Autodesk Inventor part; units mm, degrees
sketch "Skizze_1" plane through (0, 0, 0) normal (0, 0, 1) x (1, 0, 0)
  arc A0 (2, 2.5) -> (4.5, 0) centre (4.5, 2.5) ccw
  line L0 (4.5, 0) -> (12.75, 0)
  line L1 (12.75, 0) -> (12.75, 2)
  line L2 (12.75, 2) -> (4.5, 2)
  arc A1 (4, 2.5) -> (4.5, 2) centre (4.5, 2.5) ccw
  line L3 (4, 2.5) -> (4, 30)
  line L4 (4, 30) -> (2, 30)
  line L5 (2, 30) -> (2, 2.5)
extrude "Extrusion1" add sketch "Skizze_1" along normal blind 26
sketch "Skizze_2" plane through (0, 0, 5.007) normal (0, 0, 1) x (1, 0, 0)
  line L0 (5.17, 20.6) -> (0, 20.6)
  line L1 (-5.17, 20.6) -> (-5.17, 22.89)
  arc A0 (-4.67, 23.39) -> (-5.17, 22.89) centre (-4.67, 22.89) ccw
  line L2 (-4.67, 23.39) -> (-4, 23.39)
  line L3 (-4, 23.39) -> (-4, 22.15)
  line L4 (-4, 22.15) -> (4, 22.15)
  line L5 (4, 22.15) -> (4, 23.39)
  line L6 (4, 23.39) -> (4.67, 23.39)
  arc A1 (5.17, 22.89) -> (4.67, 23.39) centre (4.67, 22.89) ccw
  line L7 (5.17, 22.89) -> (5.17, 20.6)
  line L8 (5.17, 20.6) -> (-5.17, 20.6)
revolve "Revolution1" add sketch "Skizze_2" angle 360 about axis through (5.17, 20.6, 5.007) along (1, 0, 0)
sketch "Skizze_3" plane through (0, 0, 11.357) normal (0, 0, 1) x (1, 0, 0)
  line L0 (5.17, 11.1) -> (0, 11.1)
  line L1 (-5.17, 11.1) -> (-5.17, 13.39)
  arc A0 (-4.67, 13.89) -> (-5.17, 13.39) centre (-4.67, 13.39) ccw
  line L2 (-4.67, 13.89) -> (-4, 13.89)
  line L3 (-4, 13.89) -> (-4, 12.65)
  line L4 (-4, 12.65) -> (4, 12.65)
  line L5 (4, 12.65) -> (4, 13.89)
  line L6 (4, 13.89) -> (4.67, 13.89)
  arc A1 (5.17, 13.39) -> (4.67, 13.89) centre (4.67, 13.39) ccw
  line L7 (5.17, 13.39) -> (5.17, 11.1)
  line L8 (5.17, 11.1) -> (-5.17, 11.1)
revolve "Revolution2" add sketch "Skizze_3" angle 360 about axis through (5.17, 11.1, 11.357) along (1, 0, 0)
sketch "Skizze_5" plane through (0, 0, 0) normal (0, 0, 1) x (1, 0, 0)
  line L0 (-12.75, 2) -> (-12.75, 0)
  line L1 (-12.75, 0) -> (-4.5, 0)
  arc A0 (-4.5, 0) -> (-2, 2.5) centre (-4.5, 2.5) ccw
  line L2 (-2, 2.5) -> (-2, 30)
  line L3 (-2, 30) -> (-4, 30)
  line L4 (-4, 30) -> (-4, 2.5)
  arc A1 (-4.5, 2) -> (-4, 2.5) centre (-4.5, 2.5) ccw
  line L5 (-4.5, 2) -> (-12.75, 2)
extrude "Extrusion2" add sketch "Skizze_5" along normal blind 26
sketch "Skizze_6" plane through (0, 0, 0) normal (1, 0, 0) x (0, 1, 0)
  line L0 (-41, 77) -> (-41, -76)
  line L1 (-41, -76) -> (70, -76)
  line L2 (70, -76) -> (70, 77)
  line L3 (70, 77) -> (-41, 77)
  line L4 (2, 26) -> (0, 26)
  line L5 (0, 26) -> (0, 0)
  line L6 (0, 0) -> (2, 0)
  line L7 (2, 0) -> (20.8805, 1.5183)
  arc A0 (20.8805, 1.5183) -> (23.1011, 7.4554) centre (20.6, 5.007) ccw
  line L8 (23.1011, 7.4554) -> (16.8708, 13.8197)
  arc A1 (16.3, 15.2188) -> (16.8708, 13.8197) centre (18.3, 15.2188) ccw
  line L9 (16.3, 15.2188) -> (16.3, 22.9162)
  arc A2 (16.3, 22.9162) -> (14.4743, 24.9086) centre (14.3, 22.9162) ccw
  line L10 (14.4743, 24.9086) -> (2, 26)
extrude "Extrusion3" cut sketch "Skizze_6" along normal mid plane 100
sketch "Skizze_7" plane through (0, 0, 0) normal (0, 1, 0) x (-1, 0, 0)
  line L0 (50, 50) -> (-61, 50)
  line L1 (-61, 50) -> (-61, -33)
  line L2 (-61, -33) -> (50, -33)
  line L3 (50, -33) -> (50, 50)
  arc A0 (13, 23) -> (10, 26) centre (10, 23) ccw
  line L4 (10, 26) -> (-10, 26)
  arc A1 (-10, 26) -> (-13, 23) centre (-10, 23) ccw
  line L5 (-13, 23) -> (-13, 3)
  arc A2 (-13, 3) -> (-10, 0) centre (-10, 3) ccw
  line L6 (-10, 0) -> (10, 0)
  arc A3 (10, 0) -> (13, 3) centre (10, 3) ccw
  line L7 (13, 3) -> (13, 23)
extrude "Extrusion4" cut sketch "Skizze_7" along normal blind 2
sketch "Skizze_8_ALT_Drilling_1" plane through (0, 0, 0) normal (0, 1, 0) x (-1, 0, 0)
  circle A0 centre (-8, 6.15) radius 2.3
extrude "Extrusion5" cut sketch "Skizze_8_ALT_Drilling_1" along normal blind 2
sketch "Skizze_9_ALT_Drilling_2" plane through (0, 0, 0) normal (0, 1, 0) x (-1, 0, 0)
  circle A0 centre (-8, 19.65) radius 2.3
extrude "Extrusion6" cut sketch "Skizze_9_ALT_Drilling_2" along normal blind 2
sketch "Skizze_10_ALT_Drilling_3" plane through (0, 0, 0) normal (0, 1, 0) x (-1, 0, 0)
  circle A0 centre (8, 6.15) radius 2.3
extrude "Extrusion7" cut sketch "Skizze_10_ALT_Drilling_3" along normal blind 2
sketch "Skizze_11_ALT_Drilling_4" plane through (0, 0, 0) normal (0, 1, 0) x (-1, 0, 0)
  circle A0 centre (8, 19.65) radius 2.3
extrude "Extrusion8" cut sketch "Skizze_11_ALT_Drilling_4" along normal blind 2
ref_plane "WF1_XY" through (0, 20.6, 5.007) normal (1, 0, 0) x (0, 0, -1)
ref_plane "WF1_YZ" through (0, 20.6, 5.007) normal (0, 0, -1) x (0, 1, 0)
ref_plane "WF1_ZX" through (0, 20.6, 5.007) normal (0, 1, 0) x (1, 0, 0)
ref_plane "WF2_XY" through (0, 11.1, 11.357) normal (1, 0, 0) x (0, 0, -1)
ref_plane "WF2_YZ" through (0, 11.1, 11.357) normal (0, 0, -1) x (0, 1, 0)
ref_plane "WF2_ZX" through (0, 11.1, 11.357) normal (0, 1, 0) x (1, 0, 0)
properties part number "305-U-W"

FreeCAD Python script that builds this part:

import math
import FreeCAD as App
import Part
import Sketcher
Q = App.Units.Quantity


def add_polygon(sketch, points):
    """Adds a closed chain of lines whose ends are joined by coincident constraints."""
    first, n = sketch.GeometryCount, len(points)
    for a, b in zip(points, points[1:] + points[:1]):
        sketch.addGeometry(Part.LineSegment(App.Vector(*a, 0), App.Vector(*b, 0)), False)
    for i in range(n):
        sketch.addConstraint(Sketcher.Constraint("Coincident", first + i, 2, first + (i + 1) % n, 1))

doc = App.newDocument("Part")
body = doc.addObject("PartDesign::Body", "Body")

sketch1 = body.newObject("Sketcher::SketchObject", "Sketch")
sketch1.AttachmentSupport = (doc.getObject("XY_Plane"), [""])
sketch1.MapMode = "FlatFace"
sketch1.addGeometry([
    Part.LineSegment(App.Vector(2, 30, 0), App.Vector(2, 2.5, 0)),
    Part.ArcOfCircle(Part.Circle(App.Vector(4.5, 2.5, 0), App.Vector(0, 0, 1), 2.5), math.radians(180), math.radians(270)),
    Part.LineSegment(App.Vector(4.5, 0, 0), App.Vector(12.8, 0, 0)),
    Part.LineSegment(App.Vector(12.8, 0, 0), App.Vector(12.8, 2, 0)),
    Part.LineSegment(App.Vector(12.8, 2, 0), App.Vector(4.5, 2, 0)),
    Part.ArcOfCircle(Part.Circle(App.Vector(4.5, 2.5, 0), App.Vector(0, 0, 1), 0.5), math.radians(180), math.radians(270)),
    Part.LineSegment(App.Vector(4, 2.5, 0), App.Vector(4, 30, 0)),
    Part.LineSegment(App.Vector(4, 30, 0), App.Vector(2, 30, 0)),
], False)
sketch1.addConstraint([
    Sketcher.Constraint("Tangent", 0, 2, 1, 1),
    Sketcher.Constraint("Tangent", 1, 2, 2, 1),
    Sketcher.Constraint("Coincident", 2, 2, 3, 1),
    Sketcher.Constraint("Coincident", 3, 2, 4, 1),
    Sketcher.Constraint("Tangent", 4, 2, 5, 2),
    Sketcher.Constraint("Tangent", 5, 1, 6, 1),
    Sketcher.Constraint("Coincident", 6, 2, 7, 1),
    Sketcher.Constraint("Coincident", 7, 2, 0, 1),
    Sketcher.Constraint("Vertical", 0),
    Sketcher.Constraint("Horizontal", 2),
    Sketcher.Constraint("Vertical", 3),
    Sketcher.Constraint("Horizontal", 4),
    Sketcher.Constraint("Vertical", 6),
    Sketcher.Constraint("Horizontal", 7),
    Sketcher.Constraint("Coincident", 5, 3, 1, 3),
    Sketcher.Constraint("PointOnObject", 1, 2, -1),
    Sketcher.Constraint("Radius", 1, 2.5),
    Sketcher.Constraint("Radius", 5, 0.5),
    Sketcher.Constraint("DistanceY", 0, 2, 0, 1, 27.5),
    Sketcher.Constraint("DistanceX", -1, 1, 0, 2, 2.0),
    Sketcher.Constraint("DistanceX", 2, 1, 2, 2, 8.25),
])
pad1 = body.newObject("PartDesign::Pad", "Pad")
pad1.Profile = sketch1
pad1.Length = 26

sketch2 = body.newObject("Sketcher::SketchObject", "Sketch001")
sketch2.AttachmentSupport = (doc.getObject("XY_Plane"), [""])
sketch2.MapMode = "FlatFace"
sketch2.AttachmentOffset = App.Placement(App.Vector(0, 0, 5.007), App.Rotation())
sketch2.addGeometry([
    Part.LineSegment(App.Vector(-5.2, 20.6, 0), App.Vector(5.2, 20.6, 0)),
    Part.LineSegment(App.Vector(5.2, 20.6, 0), App.Vector(5.2, 22.9, 0)),
    Part.ArcOfCircle(Part.Circle(App.Vector(4.7, 22.9, 0), App.Vector(0, 0, 1), 0.5), math.radians(0), math.radians(90)),
    Part.LineSegment(App.Vector(4.7, 23.4, 0), App.Vector(4, 23.4, 0)),
    Part.LineSegment(App.Vector(4, 23.4, 0), App.Vector(4, 22.1, 0)),
    Part.LineSegment(App.Vector(4, 22.1, 0), App.Vector(-4, 22.1, 0)),
    Part.LineSegment(App.Vector(-4, 22.1, 0), App.Vector(-4, 23.4, 0)),
    Part.LineSegment(App.Vector(-4, 23.4, 0), App.Vector(-4.7, 23.4, 0)),
    Part.ArcOfCircle(Part.Circle(App.Vector(-4.7, 22.9, 0), App.Vector(0, 0, 1), 0.5), math.radians(90), math.radians(180)),
    Part.LineSegment(App.Vector(-5.2, 22.9, 0), App.Vector(-5.2, 20.6, 0)),
], False)
sketch2.addGeometry(Part.LineSegment(App.Vector(-5.2, 20.6, 0), App.Vector(5.2, 20.6, 0)), True)
sketch2.addConstraint([
    Sketcher.Constraint("Coincident", 0, 2, 1, 1),
    Sketcher.Constraint("Tangent", 1, 2, 2, 1),
    Sketcher.Constraint("Tangent", 2, 2, 3, 1),
    Sketcher.Constraint("Coincident", 3, 2, 4, 1),
    Sketcher.Constraint("Coincident", 4, 2, 5, 1),
    Sketcher.Constraint("Coincident", 5, 2, 6, 1),
    Sketcher.Constraint("Coincident", 6, 2, 7, 1),
    Sketcher.Constraint("Tangent", 7, 2, 8, 1),
    Sketcher.Constraint("Tangent", 8, 2, 9, 1),
    Sketcher.Constraint("Coincident", 9, 2, 0, 1),
    Sketcher.Constraint("Horizontal", 0),
    Sketcher.Constraint("Vertical", 1),
    Sketcher.Constraint("Horizontal", 3),
    Sketcher.Constraint("Vertical", 4),
    Sketcher.Constraint("Horizontal", 5),
    Sketcher.Constraint("Vertical", 6),
    Sketcher.Constraint("Horizontal", 7),
    Sketcher.Constraint("Vertical", 9),
    Sketcher.Constraint("Horizontal", 10),
    Sketcher.Constraint("Coincident", 10, 1, 9, 2),
    Sketcher.Constraint("Equal", 2, 8),
    Sketcher.Constraint("Symmetric", 2, 3, 8, 3, -2),
    Sketcher.Constraint("Vertical", 1, 2, 10, 2),
    Sketcher.Constraint("Equal", 3, 7),
    Sketcher.Constraint("Radius", 2, 0.5),
    Sketcher.Constraint("DistanceX", 5, 2, 5, 1, 8.0),
    Sketcher.Constraint("DistanceX", 0, 1, 0, 2, 10.34),
    Sketcher.Constraint("DistanceY", 1, 1, 1, 2, 2.29),
    Sketcher.Constraint("DistanceY", 4, 2, 4, 1, 1.24),
    Sketcher.Constraint("DistanceY", -1, 1, 0, 2, 20.6),
])
revolution = body.newObject("PartDesign::Revolution", "Revolution")
revolution.Profile = sketch2
revolution.ReferenceAxis = (sketch2, ["Axis0"])
revolution.Angle = 360

sketch3 = body.newObject("Sketcher::SketchObject", "Sketch002")
sketch3.AttachmentSupport = (doc.getObject("XY_Plane"), [""])
sketch3.MapMode = "FlatFace"
sketch3.AttachmentOffset = App.Placement(App.Vector(0, 0, 11.357), App.Rotation())
sketch3.addGeometry([
    Part.LineSegment(App.Vector(-5.2, 11.1, 0), App.Vector(5.2, 11.1, 0)),
    Part.LineSegment(App.Vector(5.2, 11.1, 0), App.Vector(5.2, 13.4, 0)),
    Part.ArcOfCircle(Part.Circle(App.Vector(4.7, 13.4, 0), App.Vector(0, 0, 1), 0.5), math.radians(0), math.radians(90)),
    Part.LineSegment(App.Vector(4.7, 13.9, 0), App.Vector(4, 13.9, 0)),
    Part.LineSegment(App.Vector(4, 13.9, 0), App.Vector(4, 12.7, 0)),
    Part.LineSegment(App.Vector(4, 12.7, 0), App.Vector(-4, 12.7, 0)),
    Part.LineSegment(App.Vector(-4, 12.7, 0), App.Vector(-4, 13.9, 0)),
    Part.LineSegment(App.Vector(-4, 13.9, 0), App.Vector(-4.7, 13.9, 0)),
    Part.ArcOfCircle(Part.Circle(App.Vector(-4.7, 13.4, 0), App.Vector(0, 0, 1), 0.5), math.radians(90), math.radians(180)),
    Part.LineSegment(App.Vector(-5.2, 13.4, 0), App.Vector(-5.2, 11.1, 0)),
], False)
sketch3.addGeometry(Part.LineSegment(App.Vector(-5.2, 11.1, 0), App.Vector(5.2, 11.1, 0)), True)
sketch3.addConstraint([
    Sketcher.Constraint("Coincident", 0, 2, 1, 1),
    Sketcher.Constraint("Tangent", 1, 2, 2, 1),
    Sketcher.Constraint("Tangent", 2, 2, 3, 1),
    Sketcher.Constraint("Coincident", 3, 2, 4, 1),
    Sketcher.Constraint("Coincident", 4, 2, 5, 1),
    Sketcher.Constraint("Coincident", 5, 2, 6, 1),
    Sketcher.Constraint("Coincident", 6, 2, 7, 1),
    Sketcher.Constraint("Tangent", 7, 2, 8, 1),
    Sketcher.Constraint("Tangent", 8, 2, 9, 1),
    Sketcher.Constraint("Coincident", 9, 2, 0, 1),
    Sketcher.Constraint("Horizontal", 0),
    Sketcher.Constraint("Vertical", 1),
    Sketcher.Constraint("Horizontal", 3),
    Sketcher.Constraint("Vertical", 4),
    Sketcher.Constraint("Horizontal", 5),
    Sketcher.Constraint("Vertical", 6),
    Sketcher.Constraint("Horizontal", 7),
    Sketcher.Constraint("Vertical", 9),
    Sketcher.Constraint("Horizontal", 10),
    Sketcher.Constraint("Coincident", 10, 1, 9, 2),
    Sketcher.Constraint("Equal", 2, 8),
    Sketcher.Constraint("Symmetric", 2, 3, 8, 3, -2),
    Sketcher.Constraint("Vertical", 1, 2, 10, 2),
    Sketcher.Constraint("Equal", 3, 7),
    Sketcher.Constraint("Radius", 2, 0.5),
    Sketcher.Constraint("DistanceX", 5, 2, 5, 1, 8.0),
    Sketcher.Constraint("DistanceX", 0, 1, 0, 2, 10.34),
    Sketcher.Constraint("DistanceY", 1, 1, 1, 2, 2.29),
    Sketcher.Constraint("DistanceY", 4, 2, 4, 1, 1.24),
    Sketcher.Constraint("DistanceY", -1, 1, 0, 2, 11.1),
])
revolution2 = body.newObject("PartDesign::Revolution", "Revolution001")
revolution2.Profile = sketch3
revolution2.ReferenceAxis = (sketch3, ["Axis0"])
revolution2.Angle = 360

sketch4 = body.newObject("Sketcher::SketchObject", "Sketch003")
sketch4.AttachmentSupport = (doc.getObject("XY_Plane"), [""])
sketch4.MapMode = "FlatFace"
sketch4.addGeometry([
    Part.LineSegment(App.Vector(-4.5, 2, 0), App.Vector(-12.8, 2, 0)),
    Part.LineSegment(App.Vector(-12.8, 2, 0), App.Vector(-12.8, 0, 0)),
    Part.LineSegment(App.Vector(-12.8, 0, 0), App.Vector(-4.5, 0, 0)),
    Part.ArcOfCircle(Part.Circle(App.Vector(-4.5, 2.5, 0), App.Vector(0, 0, 1), 2.5), math.radians(-90), math.radians(0)),
    Part.LineSegment(App.Vector(-2, 2.5, 0), App.Vector(-2, 30, 0)),
    Part.LineSegment(App.Vector(-2, 30, 0), App.Vector(-4, 30, 0)),
    Part.LineSegment(App.Vector(-4, 30, 0), App.Vector(-4, 2.5, 0)),
    Part.ArcOfCircle(Part.Circle(App.Vector(-4.5, 2.5, 0), App.Vector(0, 0, 1), 0.5), math.radians(-90), math.radians(0)),
], False)
sketch4.addConstraint([
    Sketcher.Constraint("Coincident", 0, 2, 1, 1),
    Sketcher.Constraint("Coincident", 1, 2, 2, 1),
    Sketcher.Constraint("Tangent", 2, 2, 3, 1),
    Sketcher.Constraint("Tangent", 3, 2, 4, 1),
    Sketcher.Constraint("Coincident", 4, 2, 5, 1),
    Sketcher.Constraint("Coincident", 5, 2, 6, 1),
    Sketcher.Constraint("Tangent", 6, 2, 7, 2),
    Sketcher.Constraint("Tangent", 7, 1, 0, 1),
    Sketcher.Constraint("Horizontal", 0),
    Sketcher.Constraint("Vertical", 1),
    Sketcher.Constraint("Horizontal", 2),
    Sketcher.Constraint("Vertical", 4),
    Sketcher.Constraint("Horizontal", 5),
    Sketcher.Constraint("Vertical", 6),
    Sketcher.Constraint("Coincident", 7, 3, 3, 3),
    Sketcher.Constraint("PointOnObject", 1, 2, -1),
    Sketcher.Constraint("Radius", 3, 2.5),
    Sketcher.Constraint("Radius", 7, 0.5),
    Sketcher.Constraint("DistanceY", 4, 1, 4, 2, 27.5),
    Sketcher.Constraint("DistanceX", 3, 2, -1, 1, 2.0),
    Sketcher.Constraint("DistanceX", 0, 2, 0, 1, 8.25),
])
pad2 = body.newObject("PartDesign::Pad", "Pad001")
pad2.Profile = sketch4
pad2.Length = 26

sketch5 = body.newObject("Sketcher::SketchObject", "Sketch004")
sketch5.AttachmentSupport = (doc.getObject("YZ_Plane"), [""])
sketch5.MapMode = "FlatFace"
add_polygon(sketch5, [(70, 77), (-41, 77), (-41, -76), (70, -76)])
sketch5.addGeometry(Part.LineSegment(App.Vector(0, 26, 0), App.Vector(2, 26, 0)), False)
sketch5.addGeometry(Part.LineSegment(App.Vector(2, 26, 0), App.Vector(14.5, 24.9, 0)), False)
sketch5.addGeometry(Part.ArcOfCircle(Part.Circle(App.Vector(14.3, 22.9, 0), App.Vector(0, 0, 1), 2), math.radians(0), math.radians(85)), False)
sketch5.addGeometry(Part.LineSegment(App.Vector(16.3, 22.9, 0), App.Vector(16.3, 15.2, 0)), False)
sketch5.addGeometry(Part.ArcOfCircle(Part.Circle(App.Vector(18.3, 15.2, 0), App.Vector(0, 0, 1), 2), math.radians(180), math.radians(224)), False)
sketch5.addGeometry(Part.LineSegment(App.Vector(16.9, 13.8, 0), App.Vector(23.1, 7.5, 0)), False)
sketch5.addGeometry(Part.ArcOfCircle(Part.Circle(App.Vector(20.6, 5, 0), App.Vector(0, 0, 1), 3.5), math.radians(-85), math.radians(44)), False)
sketch5.addGeometry(Part.LineSegment(App.Vector(20.9, 1.5, 0), App.Vector(2, 0, 0)), False)
sketch5.addGeometry(Part.LineSegment(App.Vector(2, 0, 0), App.Vector(0, 0, 0)), False)
sketch5.addGeometry(Part.LineSegment(App.Vector(0, 0, 0), App.Vector(0, 26, 0)), False)
sketch5.addConstraint([
    Sketcher.Constraint("Coincident", 4, 2, 5, 1),
    Sketcher.Constraint("Tangent", 5, 2, 6, 2),
    Sketcher.Constraint("Tangent", 6, 1, 7, 1),
    Sketcher.Constraint("Tangent", 7, 2, 8, 1),
    Sketcher.Constraint("Tangent", 8, 2, 9, 1),
    Sketcher.Constraint("Tangent", 9, 2, 10, 2),
    Sketcher.Constraint("Tangent", 10, 1, 11, 1),
    Sketcher.Constraint("Coincident", 11, 2, 12, 1),
    Sketcher.Constraint("Coincident", 12, 2, 13, 1),
    Sketcher.Constraint("Coincident", 13, 2, 4, 1),
    Sketcher.Constraint("Horizontal", 0),
    Sketcher.Constraint("Vertical", 1),
    Sketcher.Constraint("Horizontal", 2),
    Sketcher.Constraint("Vertical", 3),
    Sketcher.Constraint("Horizontal", 4),
    Sketcher.Constraint("Vertical", 7),
    Sketcher.Constraint("Horizontal", 12),
    Sketcher.Constraint("Vertical", 13),
    Sketcher.Constraint("Coincident", 12, 2, -1, 1),
    Sketcher.Constraint("Equal", 6, 8),
    Sketcher.Constraint("Vertical", 4, 2, 11, 2),
    Sketcher.Constraint("Radius", 6, 2.0),
    Sketcher.Constraint("Radius", 10, 3.5),
    Sketcher.Constraint("DistanceX", 0, 2, 0, 1, 111.0),
    Sketcher.Constraint("DistanceX", 4, 1, 4, 2, 2.0),
    Sketcher.Constraint("DistanceY", 1, 2, 1, 1, 153.0),
    Sketcher.Constraint("DistanceY", 13, 1, 13, 2, 26.0),
    Sketcher.Constraint("Angle", 5, Q("-5.0002 deg")),
    Sketcher.Constraint("DistanceX", 0, 2, -1, 1, 41.0),
    Sketcher.Constraint("DistanceY", -1, 1, 0, 2, 77.0),
    Sketcher.Constraint("DistanceX", -1, 1, 6, 3, 14.3),
    Sketcher.Constraint("DistanceX", -1, 1, 10, 3, 20.6),
    Sketcher.Constraint("Angle", 9, Q("-45.6096 deg")),
    Sketcher.Constraint("DistanceY", 7, 2, 7, 1, 7.6974),
])
pocket1 = body.newObject("PartDesign::Pocket", "Pocket")
pocket1.Profile = sketch5
pocket1.Length = 100
pocket1.Midplane = True

sketch6 = body.newObject("Sketcher::SketchObject", "Sketch005")
sketch6.AttachmentSupport = (doc.getObject("XZ_Plane"), [""])
sketch6.MapMode = "FlatFace"
add_polygon(sketch6, [(-50, -33), (-50, 50), (61, 50), (61, -33)])
sketch6.addGeometry(Part.ArcOfCircle(Part.Circle(App.Vector(-10, 23, 0), App.Vector(0, 0, 1), 3), math.radians(90), math.radians(180)), False)
sketch6.addGeometry(Part.LineSegment(App.Vector(-13, 23, 0), App.Vector(-13, 3, 0)), False)
sketch6.addGeometry(Part.ArcOfCircle(Part.Circle(App.Vector(-10, 3, 0), App.Vector(0, 0, 1), 3), math.radians(180), math.radians(270)), False)
sketch6.addGeometry(Part.LineSegment(App.Vector(-10, 0, 0), App.Vector(10, 0, 0)), False)
sketch6.addGeometry(Part.ArcOfCircle(Part.Circle(App.Vector(10, 3, 0), App.Vector(0, 0, 1), 3), math.radians(-90), math.radians(0)), False)
sketch6.addGeometry(Part.LineSegment(App.Vector(13, 3, 0), App.Vector(13, 23, 0)), False)
sketch6.addGeometry(Part.ArcOfCircle(Part.Circle(App.Vector(10, 23, 0), App.Vector(0, 0, 1), 3), math.radians(0), math.radians(90)), False)
sketch6.addGeometry(Part.LineSegment(App.Vector(10, 26, 0), App.Vector(-10, 26, 0)), False)
sketch6.addConstraint([
    Sketcher.Constraint("Tangent", 4, 2, 5, 1),
    Sketcher.Constraint("Tangent", 5, 2, 6, 1),
    Sketcher.Constraint("Tangent", 6, 2, 7, 1),
    Sketcher.Constraint("Tangent", 7, 2, 8, 1),
    Sketcher.Constraint("Tangent", 8, 2, 9, 1),
    Sketcher.Constraint("Tangent", 9, 2, 10, 1),
    Sketcher.Constraint("Tangent", 10, 2, 11, 1),
    Sketcher.Constraint("Tangent", 11, 2, 4, 1),
    Sketcher.Constraint("Vertical", 0),
    Sketcher.Constraint("Horizontal", 1),
    Sketcher.Constraint("Vertical", 2),
    Sketcher.Constraint("Horizontal", 3),
    Sketcher.Constraint("Vertical", 5),
    Sketcher.Constraint("Horizontal", 7),
    Sketcher.Constraint("Vertical", 9),
    Sketcher.Constraint("Horizontal", 11),
    Sketcher.Constraint("Equal", 4, 6),
    Sketcher.Constraint("Equal", 6, 8),
    Sketcher.Constraint("Equal", 8, 10),
    Sketcher.Constraint("Symmetric", 6, 2, 7, 2, -1, 1),
    Sketcher.Constraint("Equal", 11, 5),
    Sketcher.Constraint("Radius", 4, 3.0),
    Sketcher.Constraint("DistanceX", 1, 1, 1, 2, 111.0),
    Sketcher.Constraint("DistanceX", 7, 1, 7, 2, 20.0),
    Sketcher.Constraint("DistanceY", 0, 1, 0, 2, 83.0),
    Sketcher.Constraint("DistanceX", 0, 2, -1, 1, 50.0),
    Sketcher.Constraint("DistanceY", -1, 1, 0, 2, 50.0),
])
pocket2 = body.newObject("PartDesign::Pocket", "Pocket001")
pocket2.Profile = sketch6
pocket2.Length = 2

sketch7 = body.newObject("Sketcher::SketchObject", "Sketch006")
sketch7.AttachmentSupport = (doc.getObject("XZ_Plane"), [""])
sketch7.MapMode = "FlatFace"
sketch7.addGeometry(Part.Circle(App.Vector(8, 6.2, 0), App.Vector(0, 0, 1), 2.3), False)
sketch7.addConstraint([
    Sketcher.Constraint("Diameter", 0, 4.6),
    Sketcher.Constraint("DistanceX", -1, 1, 0, 3, 8.0),
    Sketcher.Constraint("DistanceY", -1, 1, 0, 3, 6.15),
])
pocket3 = body.newObject("PartDesign::Pocket", "Pocket002")
pocket3.Profile = sketch7
pocket3.Length = 2

sketch8 = body.newObject("Sketcher::SketchObject", "Sketch007")
sketch8.AttachmentSupport = (doc.getObject("XZ_Plane"), [""])
sketch8.MapMode = "FlatFace"
sketch8.addGeometry(Part.Circle(App.Vector(8, 19.6, 0), App.Vector(0, 0, 1), 2.3), False)
sketch8.addConstraint([
    Sketcher.Constraint("Diameter", 0, 4.6),
    Sketcher.Constraint("DistanceX", -1, 1, 0, 3, 8.0),
    Sketcher.Constraint("DistanceY", -1, 1, 0, 3, 19.65),
])
pocket4 = body.newObject("PartDesign::Pocket", "Pocket003")
pocket4.Profile = sketch8
pocket4.Length = 2

sketch9 = body.newObject("Sketcher::SketchObject", "Sketch008")
sketch9.AttachmentSupport = (doc.getObject("XZ_Plane"), [""])
sketch9.MapMode = "FlatFace"
sketch9.addGeometry(Part.Circle(App.Vector(-8, 6.2, 0), App.Vector(0, 0, 1), 2.3), False)
sketch9.addConstraint([
    Sketcher.Constraint("Diameter", 0, 4.6),
    Sketcher.Constraint("DistanceX", 0, 3, -1, 1, 8.0),
    Sketcher.Constraint("DistanceY", -1, 1, 0, 3, 6.15),
])
pocket5 = body.newObject("PartDesign::Pocket", "Pocket004")
pocket5.Profile = sketch9
pocket5.Length = 2

sketch10 = body.newObject("Sketcher::SketchObject", "Sketch009")
sketch10.AttachmentSupport = (doc.getObject("XZ_Plane"), [""])
sketch10.MapMode = "FlatFace"
sketch10.addGeometry(Part.Circle(App.Vector(-8, 19.6, 0), App.Vector(0, 0, 1), 2.3), False)
sketch10.addConstraint([
    Sketcher.Constraint("Diameter", 0, 4.6),
    Sketcher.Constraint("DistanceX", 0, 3, -1, 1, 8.0),
    Sketcher.Constraint("DistanceY", -1, 1, 0, 3, 19.65),
])
pocket6 = body.newObject("PartDesign::Pocket", "Pocket005")
pocket6.Profile = sketch10
pocket6.Length = 2

doc.recompute()
